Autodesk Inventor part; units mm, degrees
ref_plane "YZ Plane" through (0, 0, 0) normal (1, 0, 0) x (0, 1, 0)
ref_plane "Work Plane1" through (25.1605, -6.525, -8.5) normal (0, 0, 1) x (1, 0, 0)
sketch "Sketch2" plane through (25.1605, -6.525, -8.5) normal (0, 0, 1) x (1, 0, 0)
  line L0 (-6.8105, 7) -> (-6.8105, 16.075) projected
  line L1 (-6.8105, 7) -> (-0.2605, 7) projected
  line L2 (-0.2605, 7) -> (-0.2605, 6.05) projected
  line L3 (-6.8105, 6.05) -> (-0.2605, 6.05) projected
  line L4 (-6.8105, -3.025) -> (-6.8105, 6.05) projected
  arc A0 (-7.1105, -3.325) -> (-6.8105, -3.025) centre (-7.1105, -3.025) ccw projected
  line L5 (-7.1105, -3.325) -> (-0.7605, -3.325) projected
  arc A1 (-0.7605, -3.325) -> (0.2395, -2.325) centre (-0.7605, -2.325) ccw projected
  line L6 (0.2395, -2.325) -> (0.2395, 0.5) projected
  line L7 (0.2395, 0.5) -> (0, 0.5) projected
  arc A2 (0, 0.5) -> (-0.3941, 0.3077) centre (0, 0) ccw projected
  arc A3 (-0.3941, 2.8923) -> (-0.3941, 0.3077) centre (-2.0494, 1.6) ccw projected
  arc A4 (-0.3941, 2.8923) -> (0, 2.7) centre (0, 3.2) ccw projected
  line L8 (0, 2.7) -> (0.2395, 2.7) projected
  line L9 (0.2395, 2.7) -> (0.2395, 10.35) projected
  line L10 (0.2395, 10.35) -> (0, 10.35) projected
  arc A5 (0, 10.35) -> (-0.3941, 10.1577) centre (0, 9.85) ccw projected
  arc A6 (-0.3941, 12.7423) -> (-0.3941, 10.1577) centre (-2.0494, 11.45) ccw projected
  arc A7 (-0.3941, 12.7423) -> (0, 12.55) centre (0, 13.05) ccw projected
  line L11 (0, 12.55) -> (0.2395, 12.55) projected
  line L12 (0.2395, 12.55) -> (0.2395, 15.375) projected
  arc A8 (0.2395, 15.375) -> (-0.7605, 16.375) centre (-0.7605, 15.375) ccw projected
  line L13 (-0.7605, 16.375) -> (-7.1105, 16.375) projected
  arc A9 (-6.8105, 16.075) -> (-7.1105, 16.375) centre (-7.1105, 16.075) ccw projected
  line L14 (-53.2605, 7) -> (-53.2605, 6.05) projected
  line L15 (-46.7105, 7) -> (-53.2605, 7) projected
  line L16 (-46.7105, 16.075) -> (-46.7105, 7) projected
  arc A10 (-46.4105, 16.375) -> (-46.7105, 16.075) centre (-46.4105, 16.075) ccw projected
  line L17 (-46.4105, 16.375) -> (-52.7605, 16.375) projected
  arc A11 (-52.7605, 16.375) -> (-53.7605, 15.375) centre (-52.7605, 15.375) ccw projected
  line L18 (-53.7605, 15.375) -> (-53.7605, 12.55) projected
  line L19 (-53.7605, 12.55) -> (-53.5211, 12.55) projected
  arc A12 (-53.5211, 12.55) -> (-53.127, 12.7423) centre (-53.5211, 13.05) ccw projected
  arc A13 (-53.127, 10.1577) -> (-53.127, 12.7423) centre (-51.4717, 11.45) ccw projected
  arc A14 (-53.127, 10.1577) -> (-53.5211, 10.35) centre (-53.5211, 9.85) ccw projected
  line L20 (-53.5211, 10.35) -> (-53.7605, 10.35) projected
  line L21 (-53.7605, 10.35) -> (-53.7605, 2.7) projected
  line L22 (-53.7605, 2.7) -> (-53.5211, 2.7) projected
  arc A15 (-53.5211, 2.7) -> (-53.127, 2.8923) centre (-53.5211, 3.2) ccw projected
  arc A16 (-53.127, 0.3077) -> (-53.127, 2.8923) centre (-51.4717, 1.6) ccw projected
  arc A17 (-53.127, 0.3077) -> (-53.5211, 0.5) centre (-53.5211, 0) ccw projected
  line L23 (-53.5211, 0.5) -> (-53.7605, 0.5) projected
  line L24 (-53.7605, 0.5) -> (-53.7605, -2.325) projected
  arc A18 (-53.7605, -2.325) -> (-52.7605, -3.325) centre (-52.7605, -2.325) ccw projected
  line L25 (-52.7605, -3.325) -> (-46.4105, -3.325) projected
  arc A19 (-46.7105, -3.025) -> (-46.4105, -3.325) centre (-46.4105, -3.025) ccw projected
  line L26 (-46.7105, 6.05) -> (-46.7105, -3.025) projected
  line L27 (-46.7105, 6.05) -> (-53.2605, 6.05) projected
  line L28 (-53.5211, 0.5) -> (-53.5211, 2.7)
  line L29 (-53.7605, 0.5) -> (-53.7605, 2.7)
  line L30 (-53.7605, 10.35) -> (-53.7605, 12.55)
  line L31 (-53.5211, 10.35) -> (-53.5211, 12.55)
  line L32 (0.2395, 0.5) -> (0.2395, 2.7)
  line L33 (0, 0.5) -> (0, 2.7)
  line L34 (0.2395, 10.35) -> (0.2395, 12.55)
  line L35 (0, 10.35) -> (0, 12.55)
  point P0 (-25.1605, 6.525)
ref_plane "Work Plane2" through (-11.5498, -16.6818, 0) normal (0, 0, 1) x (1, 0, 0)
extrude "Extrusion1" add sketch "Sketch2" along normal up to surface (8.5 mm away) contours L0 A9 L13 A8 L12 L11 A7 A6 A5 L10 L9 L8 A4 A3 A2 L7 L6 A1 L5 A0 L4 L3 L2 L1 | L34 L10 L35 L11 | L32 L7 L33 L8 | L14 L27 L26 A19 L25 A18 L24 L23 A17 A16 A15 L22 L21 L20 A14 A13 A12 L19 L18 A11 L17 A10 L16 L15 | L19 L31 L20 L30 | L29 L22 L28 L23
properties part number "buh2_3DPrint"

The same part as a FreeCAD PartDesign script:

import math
import FreeCAD as App
import Part
import Sketcher

doc = App.newDocument("Part")
body = doc.addObject("PartDesign::Body", "Body")
body.AllowCompound = True

# Sketch on XY plane
sketch1 = doc.addObject("Sketcher::SketchObject", "Sketch")
body.addObject(sketch1)
sketch1.AttachmentSupport = (doc.XY_Plane, [""])
sketch1.MapMode = "FlatFace"
sketch1.AttachmentOffset = App.Placement(App.Vector(0, 0, -8.5), App.Rotation())
sketch1.addGeometry([
    Part.LineSegment(App.Vector(18.35, 9.55, 0), App.Vector(18.35, 0.47, 0)),  # 0
    Part.LineSegment(App.Vector(18.35, 0.47, 0), App.Vector(24.9, 0.47, 0)),  # 1
    Part.LineSegment(App.Vector(24.9, 0.47, 0), App.Vector(24.9, -0.47, 0)),  # 2
    Part.LineSegment(App.Vector(24.9, -0.47, 0), App.Vector(18.35, -0.47, 0)),  # 3
    Part.LineSegment(App.Vector(18.35, -0.47, 0), App.Vector(18.35, -9.55, 0)),  # 4
    Part.ArcOfCircle(Part.Circle(App.Vector(18.05, -9.55, 0), App.Vector(0, 0, 1), 0.3), math.radians(-90), math.radians(0)),  # 5
    Part.LineSegment(App.Vector(18.05, -9.85, 0), App.Vector(24.4, -9.85, 0)),  # 6
    Part.ArcOfCircle(Part.Circle(App.Vector(24.4, -8.85, 0), App.Vector(0, 0, 1), 1), math.radians(-90), math.radians(0)),  # 7
    Part.LineSegment(App.Vector(25.4, -8.85, 0), App.Vector(25.4, 8.85, 0)),  # 8
    Part.ArcOfCircle(Part.Circle(App.Vector(24.4, 8.85, 0), App.Vector(0, 0, 1), 1), math.radians(0), math.radians(90)),  # 9
    Part.LineSegment(App.Vector(24.4, 9.85, 0), App.Vector(18.05, 9.85, 0)),  # 10
    Part.ArcOfCircle(Part.Circle(App.Vector(18.05, 9.55, 0), App.Vector(0, 0, 1), 0.3), math.radians(0), math.radians(90)),  # 11
    Part.ArcOfCircle(Part.Circle(App.Vector(25.16, 6.53, 0), App.Vector(0, 0, 1), 0.5), math.radians(-142), math.radians(-90)),  # 12
    Part.LineSegment(App.Vector(25.16, 6.03, 0), App.Vector(25.16, 3.83, 0)),  # 13
    Part.ArcOfCircle(Part.Circle(App.Vector(25.16, 3.33, 0), App.Vector(0, 0, 1), 0.5), math.radians(90), math.radians(142)),  # 14
    Part.ArcOfCircle(Part.Circle(App.Vector(23.11, 4.92, 0), App.Vector(0, 0, 1), 2.1), math.radians(38), math.radians(322)),  # 15
    Part.ArcOfCircle(Part.Circle(App.Vector(25.16, -3.33, 0), App.Vector(0, 0, 1), 0.5), math.radians(-142), math.radians(-90)),  # 16
    Part.LineSegment(App.Vector(25.16, -3.83, 0), App.Vector(25.16, -6.03, 0)),  # 17
    Part.ArcOfCircle(Part.Circle(App.Vector(25.16, -6.53, 0), App.Vector(0, 0, 1), 0.5), math.radians(90), math.radians(142)),  # 18
    Part.ArcOfCircle(Part.Circle(App.Vector(23.11, -4.92, 0), App.Vector(0, 0, 1), 2.1), math.radians(38), math.radians(322)),  # 19
    Part.LineSegment(App.Vector(-28.1, -0.47, 0), App.Vector(-28.1, 0.47, 0)),  # 20
    Part.LineSegment(App.Vector(-28.1, 0.47, 0), App.Vector(-21.55, 0.47, 0)),  # 21
    Part.LineSegment(App.Vector(-21.55, 0.47, 0), App.Vector(-21.55, 9.55, 0)),  # 22
    Part.ArcOfCircle(Part.Circle(App.Vector(-21.25, 9.55, 0), App.Vector(0, 0, 1), 0.3), math.radians(90), math.radians(180)),  # 23
    Part.LineSegment(App.Vector(-21.25, 9.85, 0), App.Vector(-27.6, 9.85, 0)),  # 24
    Part.ArcOfCircle(Part.Circle(App.Vector(-27.6, 8.85, 0), App.Vector(0, 0, 1), 1), math.radians(90), math.radians(180)),  # 25
    Part.LineSegment(App.Vector(-28.6, 8.85, 0), App.Vector(-28.6, -8.85, 0)),  # 26
    Part.ArcOfCircle(Part.Circle(App.Vector(-27.6, -8.85, 0), App.Vector(0, 0, 1), 1), math.radians(180), math.radians(270)),  # 27
    Part.LineSegment(App.Vector(-27.6, -9.85, 0), App.Vector(-21.25, -9.85, 0)),  # 28
    Part.ArcOfCircle(Part.Circle(App.Vector(-21.25, -9.55, 0), App.Vector(0, 0, 1), 0.3), math.radians(180), math.radians(270)),  # 29
    Part.LineSegment(App.Vector(-21.55, -9.55, 0), App.Vector(-21.55, -0.47, 0)),  # 30
    Part.LineSegment(App.Vector(-21.55, -0.47, 0), App.Vector(-28.1, -0.47, 0)),  # 31
    Part.ArcOfCircle(Part.Circle(App.Vector(-28.36, -6.53, 0), App.Vector(0, 0, 1), 0.5), math.radians(38), math.radians(90)),  # 32
    Part.LineSegment(App.Vector(-28.36, -6.03, 0), App.Vector(-28.36, -3.83, 0)),  # 33
    Part.ArcOfCircle(Part.Circle(App.Vector(-28.36, -3.33, 0), App.Vector(0, 0, 1), 0.5), math.radians(-90), math.radians(-38)),  # 34
    Part.ArcOfCircle(Part.Circle(App.Vector(-26.31, -4.92, 0), App.Vector(0, 0, 1), 2.1), math.radians(-142), math.radians(142)),  # 35
    Part.ArcOfCircle(Part.Circle(App.Vector(-28.36, 3.33, 0), App.Vector(0, 0, 1), 0.5), math.radians(38), math.radians(90)),  # 36
    Part.LineSegment(App.Vector(-28.36, 3.83, 0), App.Vector(-28.36, 6.03, 0)),  # 37
    Part.ArcOfCircle(Part.Circle(App.Vector(-28.36, 6.53, 0), App.Vector(0, 0, 1), 0.5), math.radians(-90), math.radians(-38)),  # 38
    Part.ArcOfCircle(Part.Circle(App.Vector(-26.31, 4.92, 0), App.Vector(0, 0, 1), 2.1), math.radians(-142), math.radians(142)),  # 39
], False)
sketch1.addConstraint([
    Sketcher.Constraint("Coincident", 0, 2, 1, 1),
    Sketcher.Constraint("Coincident", 1, 2, 2, 1),
    Sketcher.Constraint("Coincident", 2, 2, 3, 1),
    Sketcher.Constraint("Coincident", 3, 2, 4, 1),
    Sketcher.Constraint("Tangent", 4, 2, 5, 2),
    Sketcher.Constraint("Tangent", 5, 1, 6, 1),
    Sketcher.Constraint("Tangent", 6, 2, 7, 1),
    Sketcher.Constraint("Tangent", 7, 2, 8, 1),
    Sketcher.Constraint("Tangent", 8, 2, 9, 1),
    Sketcher.Constraint("Tangent", 9, 2, 10, 1),
    Sketcher.Constraint("Tangent", 10, 2, 11, 2),
    Sketcher.Constraint("Tangent", 11, 1, 0, 1),
    Sketcher.Constraint("Coincident", 12, 2, 13, 1),
    Sketcher.Constraint("Coincident", 13, 2, 14, 1),
    Sketcher.Constraint("Tangent", 14, 2, 15, 2),
    Sketcher.Constraint("Tangent", 15, 1, 12, 1),
    Sketcher.Constraint("Coincident", 16, 2, 17, 1),
    Sketcher.Constraint("Coincident", 17, 2, 18, 1),
    Sketcher.Constraint("Tangent", 18, 2, 19, 2),
    Sketcher.Constraint("Tangent", 19, 1, 16, 1),
    Sketcher.Constraint("Coincident", 20, 2, 21, 1),
    Sketcher.Constraint("Coincident", 21, 2, 22, 1),
    Sketcher.Constraint("Tangent", 22, 2, 23, 2),
    Sketcher.Constraint("Tangent", 23, 1, 24, 1),
    Sketcher.Constraint("Tangent", 24, 2, 25, 1),
    Sketcher.Constraint("Tangent", 25, 2, 26, 1),
    Sketcher.Constraint("Tangent", 26, 2, 27, 1),
    Sketcher.Constraint("Tangent", 27, 2, 28, 1),
    Sketcher.Constraint("Tangent", 28, 2, 29, 2),
    Sketcher.Constraint("Tangent", 29, 1, 30, 1),
    Sketcher.Constraint("Coincident", 30, 2, 31, 1),
    Sketcher.Constraint("Coincident", 31, 2, 20, 1),
    Sketcher.Constraint("Coincident", 32, 2, 33, 1),
    Sketcher.Constraint("Coincident", 33, 2, 34, 1),
    Sketcher.Constraint("Tangent", 34, 2, 35, 2),
    Sketcher.Constraint("Tangent", 35, 1, 32, 1),
    Sketcher.Constraint("Coincident", 36, 2, 37, 1),
    Sketcher.Constraint("Coincident", 37, 2, 38, 1),
    Sketcher.Constraint("Tangent", 38, 2, 39, 2),
    Sketcher.Constraint("Tangent", 39, 1, 36, 1),
    Sketcher.Constraint("Vertical", 0),
    Sketcher.Constraint("Horizontal", 1),
    Sketcher.Constraint("Vertical", 2),
    Sketcher.Constraint("Horizontal", 3),
    Sketcher.Constraint("Vertical", 4),
    Sketcher.Constraint("Horizontal", 6),
    Sketcher.Constraint("Vertical", 8),
    Sketcher.Constraint("Horizontal", 10),
    Sketcher.Constraint("Vertical", 13),
    Sketcher.Constraint("Vertical", 17),
    Sketcher.Constraint("Vertical", 20),
    Sketcher.Constraint("Horizontal", 21),
    Sketcher.Constraint("Vertical", 22),
    Sketcher.Constraint("Horizontal", 24),
    Sketcher.Constraint("Vertical", 26),
    Sketcher.Constraint("Horizontal", 28),
    Sketcher.Constraint("Vertical", 30),
    Sketcher.Constraint("Horizontal", 31),
    Sketcher.Constraint("Vertical", 33),
    Sketcher.Constraint("Vertical", 37),
    Sketcher.Constraint("Equal", 7, 9),
    Sketcher.Constraint("Equal", 5, 11),
    Sketcher.Constraint("Equal", 12, 14),
    Sketcher.Constraint("Equal", 14, 16),
    Sketcher.Constraint("Equal", 16, 18),
    Sketcher.Constraint("Equal", 15, 19),
    Sketcher.Constraint("Equal", 11, 23),
    Sketcher.Constraint("Equal", 9, 25),
    Sketcher.Constraint("Equal", 25, 27),
    Sketcher.Constraint("Equal", 23, 29),
    Sketcher.Constraint("Equal", 18, 32),
    Sketcher.Constraint("Equal", 32, 34),
    Sketcher.Constraint("Equal", 19, 35),
    Sketcher.Constraint("Equal", 34, 36),
    Sketcher.Constraint("Equal", 36, 38),
    Sketcher.Constraint("Equal", 35, 39),
    Sketcher.Constraint("Symmetric", 5, 3, 11, 3, -1),
    Sketcher.Constraint("Symmetric", 14, 3, 16, 3, -1),
    Sketcher.Constraint("Symmetric", 12, 3, 18, 3, -1),
    Sketcher.Constraint("Symmetric", 23, 3, 29, 3, -1),
    Sketcher.Constraint("Symmetric", 34, 3, 36, 3, -1),
    Sketcher.Constraint("Symmetric", 32, 3, 38, 3, -1),
    Sketcher.Constraint("Horizontal", 11, 3, 23, 3),
    Sketcher.Constraint("Horizontal", 18, 3, 32, 3),
    Sketcher.Constraint("Horizontal", 16, 3, 34, 3),
    Sketcher.Constraint("Horizontal", 19, 3, 35, 3),
    Sketcher.Constraint("Horizontal", 1, 2, 20, 2),
    Sketcher.Constraint("Horizontal", 3, 2, 30, 2),
    Sketcher.Constraint("Vertical", 12, 3, 14, 3),
    Sketcher.Constraint("Vertical", 18, 3, 12, 2),
    Sketcher.Constraint("Vertical", 13, 2, 16, 2),
    Sketcher.Constraint("Vertical", 38, 3, 32, 2),
    Sketcher.Constraint("Vertical", 33, 2, 36, 2),
    Sketcher.Constraint("Equal", 3, 21),
    Sketcher.Constraint("Equal", 10, 24),
    Sketcher.Constraint("Equal", 0, 4),
    Sketcher.Constraint("Radius", 7, 1.0),
    Sketcher.Constraint("Radius", 5, 0.3),
    Sketcher.Constraint("Radius", 12, 0.5),
    Sketcher.Constraint("Radius", 15, 2.1),
    Sketcher.Constraint("DistanceY", 8, 1, 8, 2, 17.7),
    Sketcher.Constraint("DistanceY", 13, 2, 13, 1, 2.2),
    Sketcher.Constraint("DistanceX", 25, 3, 9, 3, 52.0),
    Sketcher.Constraint("DistanceX", 1, 1, 1, 2, 6.55),
    Sketcher.Constraint("DistanceX", 6, 1, 6, 2, 6.35),
    Sketcher.Constraint("DistanceY", 2, 2, 2, 1, 0.95),
    Sketcher.Constraint("DistanceX", -1, 1, 7, 3, 24.4),
    Sketcher.Constraint("DistanceY", 19, 3, 0, 2, 5.4),
    Sketcher.Constraint("DistanceX", -1, 1, 15, 3, 23.111),
    Sketcher.Constraint("DistanceX", 32, 3, -1, 1, 28.3606),
])
pad1 = doc.addObject("PartDesign::Pad", "Pad")
body.addObject(pad1)
pad1.Profile = sketch1
pad1.Length = 8.5

doc.recompute()
